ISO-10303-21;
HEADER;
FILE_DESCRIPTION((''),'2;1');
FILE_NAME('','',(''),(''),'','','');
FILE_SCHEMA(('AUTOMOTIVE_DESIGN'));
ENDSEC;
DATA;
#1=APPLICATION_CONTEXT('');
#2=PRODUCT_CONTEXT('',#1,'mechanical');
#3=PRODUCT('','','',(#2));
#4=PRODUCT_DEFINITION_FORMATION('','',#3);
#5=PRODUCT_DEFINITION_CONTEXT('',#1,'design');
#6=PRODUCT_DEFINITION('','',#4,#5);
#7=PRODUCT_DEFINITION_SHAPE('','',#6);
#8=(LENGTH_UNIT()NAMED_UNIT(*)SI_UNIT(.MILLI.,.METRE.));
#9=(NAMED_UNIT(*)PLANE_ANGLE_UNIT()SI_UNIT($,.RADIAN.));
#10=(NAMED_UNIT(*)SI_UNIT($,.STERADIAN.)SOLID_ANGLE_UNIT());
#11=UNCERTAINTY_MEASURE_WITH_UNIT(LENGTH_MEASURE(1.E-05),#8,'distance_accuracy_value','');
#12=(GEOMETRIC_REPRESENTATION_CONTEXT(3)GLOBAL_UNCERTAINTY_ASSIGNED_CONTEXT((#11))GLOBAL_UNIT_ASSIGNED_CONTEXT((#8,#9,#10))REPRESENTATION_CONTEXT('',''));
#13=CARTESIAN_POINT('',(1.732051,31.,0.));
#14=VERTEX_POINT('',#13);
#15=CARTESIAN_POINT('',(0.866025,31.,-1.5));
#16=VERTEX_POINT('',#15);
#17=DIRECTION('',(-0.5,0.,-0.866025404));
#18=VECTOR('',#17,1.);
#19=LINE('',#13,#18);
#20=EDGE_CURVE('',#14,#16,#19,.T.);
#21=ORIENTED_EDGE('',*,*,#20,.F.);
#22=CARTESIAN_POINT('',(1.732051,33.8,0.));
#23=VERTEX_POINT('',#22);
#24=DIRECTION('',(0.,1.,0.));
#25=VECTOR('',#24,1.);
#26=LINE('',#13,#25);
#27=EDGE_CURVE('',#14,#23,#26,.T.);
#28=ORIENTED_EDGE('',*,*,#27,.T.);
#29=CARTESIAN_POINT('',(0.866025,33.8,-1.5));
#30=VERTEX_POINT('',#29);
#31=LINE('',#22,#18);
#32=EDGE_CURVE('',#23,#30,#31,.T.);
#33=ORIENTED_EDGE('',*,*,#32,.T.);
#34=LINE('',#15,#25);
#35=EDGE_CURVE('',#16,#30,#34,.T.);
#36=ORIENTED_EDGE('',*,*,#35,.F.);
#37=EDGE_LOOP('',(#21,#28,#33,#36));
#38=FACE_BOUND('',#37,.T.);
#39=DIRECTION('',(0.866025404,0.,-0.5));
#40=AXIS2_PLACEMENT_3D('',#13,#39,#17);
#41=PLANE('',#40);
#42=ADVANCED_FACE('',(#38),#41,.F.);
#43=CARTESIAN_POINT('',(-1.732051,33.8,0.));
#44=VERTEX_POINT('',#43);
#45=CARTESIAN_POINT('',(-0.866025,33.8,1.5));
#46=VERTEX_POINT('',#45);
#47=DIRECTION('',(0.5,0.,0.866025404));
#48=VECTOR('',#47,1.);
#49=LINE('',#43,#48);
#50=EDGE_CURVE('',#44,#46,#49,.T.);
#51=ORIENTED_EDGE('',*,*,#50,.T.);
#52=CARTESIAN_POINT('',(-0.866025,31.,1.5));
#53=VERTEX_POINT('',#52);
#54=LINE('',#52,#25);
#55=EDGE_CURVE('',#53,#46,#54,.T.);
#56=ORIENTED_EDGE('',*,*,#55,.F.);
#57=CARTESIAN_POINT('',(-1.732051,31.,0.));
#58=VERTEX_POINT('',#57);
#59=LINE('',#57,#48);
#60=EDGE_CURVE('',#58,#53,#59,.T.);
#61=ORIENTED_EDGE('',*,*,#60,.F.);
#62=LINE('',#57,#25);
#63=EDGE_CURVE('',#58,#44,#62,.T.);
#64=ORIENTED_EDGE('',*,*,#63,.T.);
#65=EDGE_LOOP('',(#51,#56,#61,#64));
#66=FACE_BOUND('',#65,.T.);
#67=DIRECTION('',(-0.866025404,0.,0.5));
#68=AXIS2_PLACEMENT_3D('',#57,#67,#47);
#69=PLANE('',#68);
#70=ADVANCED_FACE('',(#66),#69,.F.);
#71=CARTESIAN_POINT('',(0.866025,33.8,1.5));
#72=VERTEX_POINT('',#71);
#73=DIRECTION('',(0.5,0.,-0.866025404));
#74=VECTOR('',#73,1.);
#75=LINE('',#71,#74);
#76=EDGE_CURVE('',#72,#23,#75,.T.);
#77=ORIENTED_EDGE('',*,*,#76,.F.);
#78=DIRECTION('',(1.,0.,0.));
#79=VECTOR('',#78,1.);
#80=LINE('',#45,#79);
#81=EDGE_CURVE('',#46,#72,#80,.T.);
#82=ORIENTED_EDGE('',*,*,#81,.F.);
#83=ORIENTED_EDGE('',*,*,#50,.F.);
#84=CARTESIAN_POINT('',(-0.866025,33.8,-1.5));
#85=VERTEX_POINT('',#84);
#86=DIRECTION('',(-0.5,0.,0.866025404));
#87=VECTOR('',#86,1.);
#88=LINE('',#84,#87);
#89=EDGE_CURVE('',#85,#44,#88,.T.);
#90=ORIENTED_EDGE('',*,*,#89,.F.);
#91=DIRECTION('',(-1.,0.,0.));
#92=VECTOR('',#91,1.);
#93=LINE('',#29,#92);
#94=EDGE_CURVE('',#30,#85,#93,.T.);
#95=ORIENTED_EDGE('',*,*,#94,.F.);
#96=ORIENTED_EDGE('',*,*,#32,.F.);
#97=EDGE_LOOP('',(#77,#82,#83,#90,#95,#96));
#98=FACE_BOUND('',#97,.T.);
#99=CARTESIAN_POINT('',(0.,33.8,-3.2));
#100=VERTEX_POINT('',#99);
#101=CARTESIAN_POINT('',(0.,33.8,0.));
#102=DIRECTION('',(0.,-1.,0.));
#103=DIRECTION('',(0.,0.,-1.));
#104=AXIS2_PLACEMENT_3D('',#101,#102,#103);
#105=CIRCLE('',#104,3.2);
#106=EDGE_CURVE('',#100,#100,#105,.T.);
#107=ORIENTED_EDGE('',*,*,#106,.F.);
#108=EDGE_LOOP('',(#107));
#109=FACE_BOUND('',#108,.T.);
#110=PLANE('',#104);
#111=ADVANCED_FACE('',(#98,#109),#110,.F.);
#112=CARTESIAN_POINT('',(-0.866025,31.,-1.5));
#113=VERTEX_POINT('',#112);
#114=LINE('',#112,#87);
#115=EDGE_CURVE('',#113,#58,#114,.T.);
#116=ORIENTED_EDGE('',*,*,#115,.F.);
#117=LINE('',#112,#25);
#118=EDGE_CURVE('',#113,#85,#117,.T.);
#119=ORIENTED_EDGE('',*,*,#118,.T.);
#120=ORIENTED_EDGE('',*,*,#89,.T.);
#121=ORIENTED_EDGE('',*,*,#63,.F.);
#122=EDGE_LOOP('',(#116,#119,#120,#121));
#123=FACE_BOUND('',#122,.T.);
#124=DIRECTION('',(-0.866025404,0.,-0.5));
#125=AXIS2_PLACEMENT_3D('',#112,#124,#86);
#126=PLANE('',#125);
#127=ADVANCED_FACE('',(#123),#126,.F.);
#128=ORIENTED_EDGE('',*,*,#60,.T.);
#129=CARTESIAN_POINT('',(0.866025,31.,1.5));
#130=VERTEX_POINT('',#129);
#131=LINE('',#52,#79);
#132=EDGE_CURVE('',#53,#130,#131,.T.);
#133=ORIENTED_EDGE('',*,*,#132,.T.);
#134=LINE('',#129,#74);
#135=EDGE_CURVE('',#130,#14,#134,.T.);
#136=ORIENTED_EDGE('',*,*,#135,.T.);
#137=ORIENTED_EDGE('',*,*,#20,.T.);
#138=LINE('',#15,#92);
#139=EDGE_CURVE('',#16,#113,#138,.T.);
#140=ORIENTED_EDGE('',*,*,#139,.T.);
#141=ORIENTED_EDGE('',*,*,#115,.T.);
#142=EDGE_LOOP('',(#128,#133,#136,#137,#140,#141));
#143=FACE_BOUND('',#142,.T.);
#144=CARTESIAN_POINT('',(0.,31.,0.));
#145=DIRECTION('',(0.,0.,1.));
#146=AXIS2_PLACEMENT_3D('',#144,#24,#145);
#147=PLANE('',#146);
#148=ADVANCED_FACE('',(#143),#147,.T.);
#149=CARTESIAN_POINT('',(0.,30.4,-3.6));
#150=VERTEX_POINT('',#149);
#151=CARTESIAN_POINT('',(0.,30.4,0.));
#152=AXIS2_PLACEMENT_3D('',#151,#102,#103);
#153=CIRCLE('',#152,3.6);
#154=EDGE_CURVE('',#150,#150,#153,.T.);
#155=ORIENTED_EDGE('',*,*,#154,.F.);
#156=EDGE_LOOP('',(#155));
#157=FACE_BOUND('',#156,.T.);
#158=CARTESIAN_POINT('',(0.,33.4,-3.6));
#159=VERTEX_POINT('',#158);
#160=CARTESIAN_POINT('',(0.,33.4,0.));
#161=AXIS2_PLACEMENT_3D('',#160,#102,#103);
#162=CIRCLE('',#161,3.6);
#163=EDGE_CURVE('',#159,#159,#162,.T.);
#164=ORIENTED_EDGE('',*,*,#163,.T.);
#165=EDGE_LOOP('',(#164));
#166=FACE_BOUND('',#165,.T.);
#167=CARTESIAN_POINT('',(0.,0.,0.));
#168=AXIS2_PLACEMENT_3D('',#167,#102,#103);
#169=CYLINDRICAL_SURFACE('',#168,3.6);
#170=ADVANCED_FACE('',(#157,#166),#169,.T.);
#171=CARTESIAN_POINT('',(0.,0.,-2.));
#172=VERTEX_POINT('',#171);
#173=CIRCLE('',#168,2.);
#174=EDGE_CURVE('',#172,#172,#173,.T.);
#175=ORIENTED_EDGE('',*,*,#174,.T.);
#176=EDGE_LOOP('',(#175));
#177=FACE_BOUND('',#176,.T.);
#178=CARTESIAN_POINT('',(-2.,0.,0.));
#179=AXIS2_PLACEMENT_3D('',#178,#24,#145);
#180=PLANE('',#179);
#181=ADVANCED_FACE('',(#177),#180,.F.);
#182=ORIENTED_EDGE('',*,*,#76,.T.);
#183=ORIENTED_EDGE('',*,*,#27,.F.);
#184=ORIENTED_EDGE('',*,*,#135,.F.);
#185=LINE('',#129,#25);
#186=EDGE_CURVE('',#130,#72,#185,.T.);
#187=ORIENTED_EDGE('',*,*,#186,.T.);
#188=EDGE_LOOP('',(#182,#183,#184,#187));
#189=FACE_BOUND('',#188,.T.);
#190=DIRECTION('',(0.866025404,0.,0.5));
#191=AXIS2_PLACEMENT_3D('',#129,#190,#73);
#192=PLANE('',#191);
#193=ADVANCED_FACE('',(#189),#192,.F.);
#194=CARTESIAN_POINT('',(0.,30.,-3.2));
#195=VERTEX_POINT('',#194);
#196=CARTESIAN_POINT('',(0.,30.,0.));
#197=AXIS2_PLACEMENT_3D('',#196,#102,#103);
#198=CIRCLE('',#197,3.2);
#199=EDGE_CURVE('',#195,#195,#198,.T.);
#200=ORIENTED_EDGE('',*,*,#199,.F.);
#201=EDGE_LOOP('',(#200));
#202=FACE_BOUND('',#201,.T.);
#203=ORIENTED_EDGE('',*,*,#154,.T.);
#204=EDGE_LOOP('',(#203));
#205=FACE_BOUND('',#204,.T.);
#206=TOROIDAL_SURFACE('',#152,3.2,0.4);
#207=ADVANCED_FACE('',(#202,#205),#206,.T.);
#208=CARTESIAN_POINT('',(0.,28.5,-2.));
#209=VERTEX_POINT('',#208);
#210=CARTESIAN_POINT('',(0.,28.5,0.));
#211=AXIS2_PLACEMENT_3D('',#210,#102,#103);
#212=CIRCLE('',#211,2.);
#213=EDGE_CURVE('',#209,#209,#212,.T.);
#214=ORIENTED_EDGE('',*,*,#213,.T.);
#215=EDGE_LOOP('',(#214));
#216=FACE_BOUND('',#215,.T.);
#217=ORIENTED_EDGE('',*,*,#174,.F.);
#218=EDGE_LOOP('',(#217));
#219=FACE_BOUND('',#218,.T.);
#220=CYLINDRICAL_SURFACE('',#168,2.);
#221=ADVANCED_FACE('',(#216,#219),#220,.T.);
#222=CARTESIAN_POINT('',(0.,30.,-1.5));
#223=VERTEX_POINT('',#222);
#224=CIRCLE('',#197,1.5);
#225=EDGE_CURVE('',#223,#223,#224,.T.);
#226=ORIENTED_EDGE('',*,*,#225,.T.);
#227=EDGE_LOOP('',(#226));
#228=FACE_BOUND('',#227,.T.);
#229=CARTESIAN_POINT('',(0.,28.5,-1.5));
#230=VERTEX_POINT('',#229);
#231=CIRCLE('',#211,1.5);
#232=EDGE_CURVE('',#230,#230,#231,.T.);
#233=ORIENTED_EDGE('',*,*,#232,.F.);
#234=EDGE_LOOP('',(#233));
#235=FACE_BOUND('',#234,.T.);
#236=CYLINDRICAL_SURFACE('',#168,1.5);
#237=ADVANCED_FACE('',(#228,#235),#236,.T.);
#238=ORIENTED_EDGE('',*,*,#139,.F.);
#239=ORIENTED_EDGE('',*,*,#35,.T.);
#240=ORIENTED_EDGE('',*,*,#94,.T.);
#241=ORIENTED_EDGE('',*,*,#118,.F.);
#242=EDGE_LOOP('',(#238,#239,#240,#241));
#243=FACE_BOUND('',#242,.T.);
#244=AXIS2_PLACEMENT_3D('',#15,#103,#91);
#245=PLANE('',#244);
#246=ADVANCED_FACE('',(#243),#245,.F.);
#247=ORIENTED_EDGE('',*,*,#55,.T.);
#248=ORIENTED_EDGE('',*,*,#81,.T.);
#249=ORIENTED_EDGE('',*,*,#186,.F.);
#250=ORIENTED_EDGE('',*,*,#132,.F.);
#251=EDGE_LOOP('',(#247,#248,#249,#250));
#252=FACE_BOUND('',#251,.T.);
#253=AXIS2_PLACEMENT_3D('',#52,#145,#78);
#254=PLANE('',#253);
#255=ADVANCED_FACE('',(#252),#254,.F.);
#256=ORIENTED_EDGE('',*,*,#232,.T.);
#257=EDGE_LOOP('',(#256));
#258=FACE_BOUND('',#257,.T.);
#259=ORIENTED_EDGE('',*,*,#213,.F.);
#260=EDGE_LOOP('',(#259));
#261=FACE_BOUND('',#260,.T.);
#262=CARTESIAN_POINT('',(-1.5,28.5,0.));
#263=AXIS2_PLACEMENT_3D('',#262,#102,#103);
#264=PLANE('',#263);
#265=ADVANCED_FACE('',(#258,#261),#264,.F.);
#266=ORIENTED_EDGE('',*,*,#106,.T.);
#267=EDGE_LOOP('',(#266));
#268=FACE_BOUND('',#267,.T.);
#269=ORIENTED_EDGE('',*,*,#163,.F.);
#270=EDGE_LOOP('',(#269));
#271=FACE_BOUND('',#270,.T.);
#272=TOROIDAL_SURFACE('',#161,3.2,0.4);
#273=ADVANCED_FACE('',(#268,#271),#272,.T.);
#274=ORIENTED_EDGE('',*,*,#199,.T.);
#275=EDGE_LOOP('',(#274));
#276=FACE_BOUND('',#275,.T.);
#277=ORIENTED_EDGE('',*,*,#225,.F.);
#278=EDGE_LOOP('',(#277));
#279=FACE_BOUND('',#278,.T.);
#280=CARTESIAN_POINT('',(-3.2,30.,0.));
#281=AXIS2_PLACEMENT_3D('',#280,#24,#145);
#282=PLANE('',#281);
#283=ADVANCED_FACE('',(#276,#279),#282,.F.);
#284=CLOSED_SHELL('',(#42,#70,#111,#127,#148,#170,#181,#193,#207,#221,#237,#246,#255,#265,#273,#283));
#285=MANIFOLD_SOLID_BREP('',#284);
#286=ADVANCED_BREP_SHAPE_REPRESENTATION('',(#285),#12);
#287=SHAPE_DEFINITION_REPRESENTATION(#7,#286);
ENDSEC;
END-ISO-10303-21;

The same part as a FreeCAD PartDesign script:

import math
import FreeCAD as App
import Part
import Sketcher

V = App.Vector
Q = App.Units.Quantity


def add_polygon(sketch, points):
    """Adds a closed chain of lines whose ends are joined by coincident constraints."""
    first, n = sketch.GeometryCount, len(points)
    for a, b in zip(points, points[1:] + points[:1]):
        sketch.addGeometry(Part.LineSegment(App.Vector(*a, 0), App.Vector(*b, 0)), False)
    for i in range(n):
        sketch.addConstraint(Sketcher.Constraint("Coincident", first + i, 2, first + (i + 1) % n, 1))

doc = App.newDocument("Part")
body = doc.addObject("PartDesign::Body", "Body")

sketch1 = doc.addObject("Sketcher::SketchObject", "Sketch")
body.addObject(sketch1)
sketch1.AttachmentSupport = (doc.XY_Plane, [""])
sketch1.MapMode = "FlatFace"
sketch1.addGeometry(Part.LineSegment(V(0, 33.8, 0), V(-3.2, 33.8, 0)), False)
sketch1.addGeometry(Part.ArcOfCircle(Part.Circle(V(-3.2, 33.4, 0), V(0, 0, 1), 0.4), math.radians(90), math.radians(180)), False)
sketch1.addGeometry(Part.LineSegment(V(-3.6, 33.4, 0), V(-3.6, 30.4, 0)), False)
sketch1.addGeometry(Part.ArcOfCircle(Part.Circle(V(-3.2, 30.4, 0), V(0, 0, 1), 0.4), math.radians(-180), math.radians(-90)), False)
sketch1.addGeometry(Part.LineSegment(V(-3.2, 30, 0), V(-1.5, 30, 0)), False)
sketch1.addGeometry(Part.LineSegment(V(-1.5, 30, 0), V(-1.5, 28.5, 0)), False)
sketch1.addGeometry(Part.LineSegment(V(-1.5, 28.5, 0), V(-2, 28.5, 0)), False)
sketch1.addGeometry(Part.LineSegment(V(-2, 28.5, 0), V(-2, 0, 0)), False)
sketch1.addGeometry(Part.LineSegment(V(-2, 0, 0), V(0, 0, 0)), False)
sketch1.addGeometry(Part.LineSegment(V(0, 0, 0), V(0, 33.8, 0)), False)
sketch1.addConstraint(Sketcher.Constraint("Tangent", 0, 2, 1, 1))
sketch1.addConstraint(Sketcher.Constraint("Tangent", 1, 2, 2, 1))
sketch1.addConstraint(Sketcher.Constraint("Tangent", 2, 2, 3, 1))
sketch1.addConstraint(Sketcher.Constraint("Tangent", 3, 2, 4, 1))
sketch1.addConstraint(Sketcher.Constraint("Coincident", 4, 2, 5, 1))
sketch1.addConstraint(Sketcher.Constraint("Coincident", 5, 2, 6, 1))
sketch1.addConstraint(Sketcher.Constraint("Coincident", 6, 2, 7, 1))
sketch1.addConstraint(Sketcher.Constraint("Coincident", 7, 2, 8, 1))
sketch1.addConstraint(Sketcher.Constraint("Coincident", 8, 2, 9, 1))
sketch1.addConstraint(Sketcher.Constraint("Coincident", 9, 2, 0, 1))
sketch1.addConstraint(Sketcher.Constraint("Horizontal", 0))
sketch1.addConstraint(Sketcher.Constraint("Vertical", 2))
sketch1.addConstraint(Sketcher.Constraint("Horizontal", 4))
sketch1.addConstraint(Sketcher.Constraint("Vertical", 5))
sketch1.addConstraint(Sketcher.Constraint("Horizontal", 6))
sketch1.addConstraint(Sketcher.Constraint("Vertical", 7))
sketch1.addConstraint(Sketcher.Constraint("Horizontal", 8))
sketch1.addConstraint(Sketcher.Constraint("Vertical", 9))
sketch1.addConstraint(Sketcher.Constraint("Coincident", 8, 2, -1, 1))
sketch1.addConstraint(Sketcher.Constraint("Equal", 1, 3))
sketch1.addConstraint(Sketcher.Constraint("Radius", 1, Q("0.4 mm")))
sketch1.addConstraint(Sketcher.Constraint("DistanceX", 8, 1, 8, 2, Q("2 mm")))
sketch1.addConstraint(Sketcher.Constraint("DistanceY", 2, 2, 2, 1, Q("3 mm")))
sketch1.addConstraint(Sketcher.Constraint("DistanceX", 0, 2, 0, 1, Q("3.2 mm")))
sketch1.addConstraint(Sketcher.Constraint("DistanceX", 4, 1, 4, 2, Q("1.7 mm")))
sketch1.addConstraint(Sketcher.Constraint("DistanceY", 5, 2, 5, 1, Q("1.5 mm")))
sketch1.addConstraint(Sketcher.Constraint("DistanceY", 7, 2, 7, 1, Q("28.5 mm")))
revolution = doc.addObject("PartDesign::Revolution", "Revolution")
body.addObject(revolution)
revolution.Profile = sketch1
revolution.ReferenceAxis = (sketch1, ["V_Axis"])
revolution.Angle = 360

sketch2 = doc.addObject("Sketcher::SketchObject", "Sketch001")
body.addObject(sketch2)
sketch2.AttachmentSupport = (doc.XZ_Plane, [""])
sketch2.MapMode = "FlatFace"
sketch2.AttachmentOffset = App.Placement(V(0, 0, -33.8), App.Rotation())
add_polygon(sketch2, [(-0.9, -1.5), (-1.7, 0), (-0.9, 1.5), (0.9, 1.5), (1.7, 0), (0.9, -1.5)])
sketch2.addConstraint(Sketcher.Constraint("Horizontal", 2))
sketch2.addConstraint(Sketcher.Constraint("Horizontal", 5))
sketch2.addConstraint(Sketcher.Constraint("Symmetric", 0, 2, 3, 2, -1, 1))
sketch2.addConstraint(Sketcher.Constraint("Symmetric", 1, 2, 4, 2, -1, 1))
sketch2.addConstraint(Sketcher.Constraint("PointOnObject", 0, 2, -1))
sketch2.addConstraint(Sketcher.Constraint("Parallel", 0, 3))
sketch2.addConstraint(Sketcher.Constraint("Vertical", 2, 2, 4, 2))
sketch2.addConstraint(Sketcher.Constraint("Angle", 0, Q("120 deg")))
sketch2.addConstraint(Sketcher.Constraint("DistanceY", 4, 2, 2, 2, Q("3 mm")))
sketch2.addConstraint(Sketcher.Constraint("DistanceX", 2, 1, 2, 2, Q("1.732051 mm")))
pocket1 = doc.addObject("PartDesign::Pocket", "Pocket")
body.addObject(pocket1)
pocket1.Profile = sketch2
pocket1.Length = 2.8
pocket1.Reversed = True

doc.recompute()
